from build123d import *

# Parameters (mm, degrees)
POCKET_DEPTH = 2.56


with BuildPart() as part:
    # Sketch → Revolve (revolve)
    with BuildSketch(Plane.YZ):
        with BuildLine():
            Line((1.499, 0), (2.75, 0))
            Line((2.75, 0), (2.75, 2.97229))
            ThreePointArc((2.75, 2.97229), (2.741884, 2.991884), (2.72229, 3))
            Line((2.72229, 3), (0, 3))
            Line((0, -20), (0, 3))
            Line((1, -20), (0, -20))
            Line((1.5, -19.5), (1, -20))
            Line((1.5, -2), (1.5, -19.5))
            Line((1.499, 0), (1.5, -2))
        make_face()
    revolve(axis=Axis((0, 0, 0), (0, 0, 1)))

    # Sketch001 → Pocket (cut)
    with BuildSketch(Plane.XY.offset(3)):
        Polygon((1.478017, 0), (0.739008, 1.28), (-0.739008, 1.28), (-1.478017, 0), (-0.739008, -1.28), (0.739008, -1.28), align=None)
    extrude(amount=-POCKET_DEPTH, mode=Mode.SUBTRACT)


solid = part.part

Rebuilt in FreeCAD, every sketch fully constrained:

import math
import FreeCAD as App
import Part
import Sketcher

V = App.Vector
Q = App.Units.Quantity


def add_polygon(sketch, points):
    """Adds a closed chain of lines whose ends are joined by coincident constraints."""
    first, n = sketch.GeometryCount, len(points)
    for a, b in zip(points, points[1:] + points[:1]):
        sketch.addGeometry(Part.LineSegment(App.Vector(*a, 0), App.Vector(*b, 0)), False)
    for i in range(n):
        sketch.addConstraint(Sketcher.Constraint("Coincident", first + i, 2, first + (i + 1) % n, 1))

doc = App.newDocument("Part")
params = doc.addObject("Spreadsheet::Sheet", "Params")
for row, (alias, value) in enumerate([
    ("sketch1_width", "1 mm"),
    ("sketch1_height", "23 mm"),
    ("sketch1_length", "2 mm"),
    ("sketch1_height2", "17.5 mm"),
    ("revolution_angle", "360 deg"),
    ("pocket1_length", "2.56 mm"),
], start=1):
    params.set(f"A{row}", alias)
    params.set(f"B{row}", "=" + value)
    params.setAlias(f"B{row}", alias)

body = doc.addObject("PartDesign::Body", "Body")

# Sketch on YZ plane
sketch1 = body.newObject("Sketcher::SketchObject", "Sketch")
sketch1.AttachmentSupport = (doc.getObject("YZ_Plane"), [""])
sketch1.MapMode = "FlatFace"
sketch1.addGeometry([
    Part.LineSegment(V(1.499, 0, 0), V(2.75, 0, 0)),  # 0
    Part.LineSegment(V(2.75, 0, 0), V(2.75, 2.972, 0)),  # 1
    Part.ArcOfCircle(Part.Circle(V(2.722, 2.972, 0), V(0, 0, 1), 0.028), math.radians(0), math.radians(90)),  # 2
    Part.LineSegment(V(2.722, 3, 0), V(0, 3, 0)),  # 3
    Part.LineSegment(V(0, 3, 0), V(0, -20, 0)),  # 4
    Part.LineSegment(V(0, -20, 0), V(1, -20, 0)),  # 5
    Part.LineSegment(V(1, -20, 0), V(1.5, -19.5, 0)),  # 6
    Part.LineSegment(V(1.5, -19.5, 0), V(1.5, -2, 0)),  # 7
    Part.LineSegment(V(1.5, -2, 0), V(1.499, 0, 0)),  # 8
], False)
sketch1.addConstraint([
    Sketcher.Constraint("Coincident", 0, 2, 1, 1),
    Sketcher.Constraint("Coincident", 1, 2, 2, 1),
    Sketcher.Constraint("Coincident", 2, 2, 3, 1),
    Sketcher.Constraint("Coincident", 3, 2, 4, 1),
    Sketcher.Constraint("Coincident", 4, 2, 5, 1),
    Sketcher.Constraint("Coincident", 5, 2, 6, 1),
    Sketcher.Constraint("Coincident", 6, 2, 7, 1),
    Sketcher.Constraint("Coincident", 7, 2, 8, 1),
    Sketcher.Constraint("Coincident", 8, 2, 0, 1),
    Sketcher.Constraint("Horizontal", 0),
    Sketcher.Constraint("Vertical", 1),
    Sketcher.Constraint("Horizontal", 3),
    Sketcher.Constraint("Vertical", 4),
    Sketcher.Constraint("Horizontal", 5),
    Sketcher.Constraint("Vertical", 7),
    Sketcher.Constraint("PointOnObject", 0, 2, -1),
    Sketcher.Constraint("PointOnObject", 3, 2, -2),
    Sketcher.Constraint("Horizontal", 2, 3, 1, 2),
    Sketcher.Constraint("DistanceX", 5, 1, 5, 2, Q("1 mm")),
    Sketcher.Constraint("DistanceY", 4, 2, 4, 1, Q("23 mm")),
    Sketcher.Constraint("Angle", 6, Q("45 deg")),
    Sketcher.Constraint("Distance", 8, Q("2 mm")),
    Sketcher.Constraint("DistanceY", 7, 1, 7, 2, Q("17.5 mm")),
    Sketcher.Constraint("DistanceY", -1, 1, 2, 2, Q("3 mm")),
    Sketcher.Constraint("DistanceX", 0, 1, 0, 2, Q("1.251 mm")),
    Sketcher.Constraint("DistanceX", -1, 1, 0, 2, Q("2.75 mm")),
    Sketcher.Constraint("Radius", 2, Q("0.02771 mm")),
    Sketcher.Constraint("DistanceX", 3, 2, 3, 1, Q("2.72229 mm")),
])
sketch1.setExpression("Constraints[18]", "Params.sketch1_width")
sketch1.setExpression("Constraints[19]", "Params.sketch1_height")
sketch1.setExpression("Constraints[21]", "Params.sketch1_length")
sketch1.setExpression("Constraints[22]", "Params.sketch1_height2")
revolution = body.newObject("PartDesign::Revolution", "Revolution")
revolution.Profile = sketch1
revolution.ReferenceAxis = (sketch1, ["V_Axis"])
revolution.setExpression("Angle", "Params.revolution_angle")

# Sketch on XY plane
sketch2 = body.newObject("Sketcher::SketchObject", "Sketch001")
sketch2.AttachmentSupport = (doc.getObject("XY_Plane"), [""])
sketch2.MapMode = "FlatFace"
sketch2.AttachmentOffset = App.Placement(V(0, 0, 3), App.Rotation())
add_polygon(sketch2, [(1.5, 0), (0.7, 1.3), (-0.7, 1.3), (-1.5, 0), (-0.7, -1.3), (0.7, -1.3)])  # lines 0-5
sketch2.addConstraint([
    Sketcher.Constraint("Horizontal", 1),
    Sketcher.Constraint("Horizontal", 4),
    Sketcher.Constraint("Symmetric", 0, 2, 3, 2, -1, 1),
    Sketcher.Constraint("Symmetric", 2, 2, 5, 2, -1, 1),
    Sketcher.Constraint("PointOnObject", 2, 2, -1),
    Sketcher.Constraint("Parallel", 2, 5),
    Sketcher.Constraint("Vertical", 1, 2, 3, 2),
    Sketcher.Constraint("DistanceY", -1, 1, 0, 2, Q("1.28 mm")),
    Sketcher.Constraint("DistanceX", 1, 2, 1, 1, Q("1.478016 mm")),
    Sketcher.Constraint("DistanceX", 2, 2, 1, 2, Q("0.739009 mm")),
])
pocket1 = body.newObject("PartDesign::Pocket", "Pocket")
pocket1.Profile = sketch2
pocket1.setExpression("Length", "Params.pocket1_length")

doc.recompute()
